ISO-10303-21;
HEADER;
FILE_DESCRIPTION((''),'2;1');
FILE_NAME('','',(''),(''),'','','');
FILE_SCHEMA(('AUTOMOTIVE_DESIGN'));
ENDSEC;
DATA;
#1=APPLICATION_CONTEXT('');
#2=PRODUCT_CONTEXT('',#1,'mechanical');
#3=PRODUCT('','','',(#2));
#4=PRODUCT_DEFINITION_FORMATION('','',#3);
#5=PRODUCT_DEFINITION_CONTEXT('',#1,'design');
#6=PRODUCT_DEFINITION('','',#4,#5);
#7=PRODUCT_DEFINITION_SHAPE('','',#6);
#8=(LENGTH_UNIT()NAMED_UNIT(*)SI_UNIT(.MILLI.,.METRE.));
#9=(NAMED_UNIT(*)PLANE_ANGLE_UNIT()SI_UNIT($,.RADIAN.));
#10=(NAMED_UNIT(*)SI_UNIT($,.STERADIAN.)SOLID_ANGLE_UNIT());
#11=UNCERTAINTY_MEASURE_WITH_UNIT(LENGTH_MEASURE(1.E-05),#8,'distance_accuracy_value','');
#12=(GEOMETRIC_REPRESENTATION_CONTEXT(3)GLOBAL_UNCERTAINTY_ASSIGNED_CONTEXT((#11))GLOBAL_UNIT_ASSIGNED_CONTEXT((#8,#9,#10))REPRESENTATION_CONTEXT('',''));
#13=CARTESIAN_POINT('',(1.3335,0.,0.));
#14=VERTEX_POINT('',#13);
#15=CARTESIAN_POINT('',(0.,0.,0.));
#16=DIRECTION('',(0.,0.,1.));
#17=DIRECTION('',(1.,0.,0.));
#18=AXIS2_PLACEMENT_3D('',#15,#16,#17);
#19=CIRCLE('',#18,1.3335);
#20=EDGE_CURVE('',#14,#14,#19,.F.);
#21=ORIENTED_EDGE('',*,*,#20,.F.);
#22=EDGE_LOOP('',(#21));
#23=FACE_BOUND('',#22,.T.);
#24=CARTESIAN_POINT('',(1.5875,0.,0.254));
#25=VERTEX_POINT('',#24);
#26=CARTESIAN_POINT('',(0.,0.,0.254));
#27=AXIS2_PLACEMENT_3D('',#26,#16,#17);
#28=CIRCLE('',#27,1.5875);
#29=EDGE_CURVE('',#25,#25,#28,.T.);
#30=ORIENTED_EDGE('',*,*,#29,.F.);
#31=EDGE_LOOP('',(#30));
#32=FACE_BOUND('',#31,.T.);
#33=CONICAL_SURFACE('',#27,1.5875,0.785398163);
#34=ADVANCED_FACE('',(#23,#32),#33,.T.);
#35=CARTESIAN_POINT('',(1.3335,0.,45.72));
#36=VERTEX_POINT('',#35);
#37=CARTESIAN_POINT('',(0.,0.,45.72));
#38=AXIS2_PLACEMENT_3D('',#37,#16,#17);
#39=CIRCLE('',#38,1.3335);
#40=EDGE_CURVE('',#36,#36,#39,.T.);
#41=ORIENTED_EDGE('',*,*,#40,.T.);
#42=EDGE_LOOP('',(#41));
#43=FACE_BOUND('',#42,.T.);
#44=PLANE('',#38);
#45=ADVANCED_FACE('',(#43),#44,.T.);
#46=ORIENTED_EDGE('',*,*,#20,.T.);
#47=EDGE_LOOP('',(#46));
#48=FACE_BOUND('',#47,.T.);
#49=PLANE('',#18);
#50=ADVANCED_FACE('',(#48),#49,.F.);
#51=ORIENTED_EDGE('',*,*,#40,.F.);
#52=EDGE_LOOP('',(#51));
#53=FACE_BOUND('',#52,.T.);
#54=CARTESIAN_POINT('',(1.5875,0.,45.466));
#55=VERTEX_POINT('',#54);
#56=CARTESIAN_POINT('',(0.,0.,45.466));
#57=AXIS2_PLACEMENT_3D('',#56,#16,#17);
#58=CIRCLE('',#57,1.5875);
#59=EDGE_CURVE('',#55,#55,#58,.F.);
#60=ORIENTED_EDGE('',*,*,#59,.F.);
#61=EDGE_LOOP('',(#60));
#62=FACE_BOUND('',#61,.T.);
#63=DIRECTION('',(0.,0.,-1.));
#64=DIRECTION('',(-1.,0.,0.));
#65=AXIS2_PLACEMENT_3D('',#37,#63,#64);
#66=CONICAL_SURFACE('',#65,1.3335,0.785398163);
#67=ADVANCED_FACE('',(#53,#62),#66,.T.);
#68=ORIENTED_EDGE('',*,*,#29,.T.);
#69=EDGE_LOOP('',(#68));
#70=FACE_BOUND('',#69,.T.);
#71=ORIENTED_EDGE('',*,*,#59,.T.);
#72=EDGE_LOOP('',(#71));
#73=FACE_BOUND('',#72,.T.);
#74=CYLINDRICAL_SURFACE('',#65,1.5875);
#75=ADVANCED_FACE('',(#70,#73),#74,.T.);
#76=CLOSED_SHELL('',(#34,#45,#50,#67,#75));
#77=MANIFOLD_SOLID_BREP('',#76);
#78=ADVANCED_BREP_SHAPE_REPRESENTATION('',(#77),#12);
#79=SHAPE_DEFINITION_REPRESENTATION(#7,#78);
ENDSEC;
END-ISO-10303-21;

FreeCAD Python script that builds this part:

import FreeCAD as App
import Part
import Sketcher
from FreeCAD import Vector
Q = App.Units.Quantity


def edges_at(feature, points):
    """Names of the edges that pass closest to the given points."""
    edges = feature.Shape.Edges
    near = lambda p: min(range(len(edges)), key=lambda i: edges[i].distToShape(Part.Vertex(*p))[0])
    return sorted({f"Edge{near(p) + 1}" for p in points})

doc = App.newDocument("Part")
body = doc.addObject("PartDesign::Body", "Body")

sketch1 = doc.addObject("Sketcher::SketchObject", "Sketch")
body.addObject(sketch1)
sketch1.AttachmentSupport = (doc.XY_Plane, [""])
sketch1.MapMode = "FlatFace"
sketch1.addGeometry(Part.Circle(Vector(0, 0, 0), Vector(0, 0, 1), 1.6), False)
sketch1.addConstraint([
    Sketcher.Constraint("Coincident", 0, 3, -1, 1),
    Sketcher.Constraint("Diameter", 0, Q("0.125 in")),
])
pad1 = doc.addObject("PartDesign::Pad", "Pad")
body.addObject(pad1)
pad1.Profile = sketch1
pad1.Length = Q("1.8 in")
doc.recompute()

chamfer = doc.addObject("PartDesign::Chamfer", "Chamfer")
body.addObject(chamfer)
chamfer.Base = (pad1, edges_at(pad1, [(-1.587, 0, 0), (-1.587, 0, 45.72)]))
chamfer.Size = Q("0.01 in")

doc.recompute()
